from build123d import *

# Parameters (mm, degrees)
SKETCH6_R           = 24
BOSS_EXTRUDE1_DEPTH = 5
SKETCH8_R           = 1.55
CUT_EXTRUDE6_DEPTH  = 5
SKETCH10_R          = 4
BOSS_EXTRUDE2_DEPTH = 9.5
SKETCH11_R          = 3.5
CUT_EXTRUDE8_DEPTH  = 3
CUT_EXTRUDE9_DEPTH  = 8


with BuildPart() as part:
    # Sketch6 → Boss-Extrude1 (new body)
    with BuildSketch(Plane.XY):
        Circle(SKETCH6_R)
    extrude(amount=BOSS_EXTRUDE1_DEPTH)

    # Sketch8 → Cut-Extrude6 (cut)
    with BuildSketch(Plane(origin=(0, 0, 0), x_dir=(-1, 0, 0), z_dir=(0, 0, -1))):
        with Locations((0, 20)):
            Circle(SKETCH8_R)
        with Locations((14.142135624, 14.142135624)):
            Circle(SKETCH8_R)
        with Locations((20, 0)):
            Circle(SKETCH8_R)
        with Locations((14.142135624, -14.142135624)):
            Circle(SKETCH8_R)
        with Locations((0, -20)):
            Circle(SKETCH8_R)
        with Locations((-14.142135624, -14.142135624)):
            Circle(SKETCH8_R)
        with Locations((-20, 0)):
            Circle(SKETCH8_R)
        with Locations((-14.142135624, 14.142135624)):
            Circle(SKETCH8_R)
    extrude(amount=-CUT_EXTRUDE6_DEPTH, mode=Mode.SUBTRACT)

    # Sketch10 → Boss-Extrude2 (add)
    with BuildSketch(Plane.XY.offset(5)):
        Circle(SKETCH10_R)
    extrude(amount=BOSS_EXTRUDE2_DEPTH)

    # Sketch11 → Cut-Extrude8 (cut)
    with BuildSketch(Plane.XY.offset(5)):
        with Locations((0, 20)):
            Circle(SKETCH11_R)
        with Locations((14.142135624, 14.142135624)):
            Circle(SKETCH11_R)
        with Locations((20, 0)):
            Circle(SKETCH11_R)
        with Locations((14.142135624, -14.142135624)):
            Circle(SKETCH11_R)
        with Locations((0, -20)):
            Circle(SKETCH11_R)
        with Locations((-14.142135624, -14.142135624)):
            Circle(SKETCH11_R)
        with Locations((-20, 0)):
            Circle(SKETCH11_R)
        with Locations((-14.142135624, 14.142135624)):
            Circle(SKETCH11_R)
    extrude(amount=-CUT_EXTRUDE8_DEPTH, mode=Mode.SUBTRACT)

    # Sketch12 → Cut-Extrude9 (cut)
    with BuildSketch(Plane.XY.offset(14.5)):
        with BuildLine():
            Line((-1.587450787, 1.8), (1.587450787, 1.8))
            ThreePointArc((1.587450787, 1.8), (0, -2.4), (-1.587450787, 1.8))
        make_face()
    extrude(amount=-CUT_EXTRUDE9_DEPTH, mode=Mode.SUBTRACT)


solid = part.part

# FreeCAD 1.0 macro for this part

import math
import FreeCAD as App
import Part
import Sketcher

V = App.Vector
Q = App.Units.Quantity

doc = App.newDocument("Part")
params = doc.addObject("Spreadsheet::Sheet", "Params")
for row, (alias, value) in enumerate([
    ("sketch1_diameter", "48 mm"),
    ("pad1_length", "5 mm"),
    ("sketch2_diameter", "3.1 mm"),
    ("pocket1_length", "5 mm"),
    ("sketch3_diameter", "8 mm"),
    ("pad2_length", "9.5 mm"),
    ("sketch4_diameter", "7 mm"),
    ("pocket2_length", "3 mm"),
    ("sketch5_radius", "2.4 mm"),
    ("pocket3_length", "8 mm"),
], start=1):
    params.set(f"A{row}", alias)
    params.set(f"B{row}", "=" + value)
    params.setAlias(f"B{row}", alias)

body = doc.addObject("PartDesign::Body", "Body")

sketch1 = doc.addObject("Sketcher::SketchObject", "Sketch")
body.addObject(sketch1)
sketch1.AttachmentSupport = (doc.XY_Plane, [""])
sketch1.MapMode = "FlatFace"
sketch1.addGeometry(Part.Circle(V(0, 0, 0), V(0, 0, 1), 24), False)
sketch1.addConstraint(Sketcher.Constraint("Coincident", 0, 3, -1, 1))
sketch1.addConstraint(Sketcher.Constraint("Diameter", 0, Q("48 mm")))
sketch1.setExpression("Constraints[1]", "Params.sketch1_diameter")
pad1 = doc.addObject("PartDesign::Pad", "Pad")
body.addObject(pad1)
pad1.Profile = sketch1
pad1.setExpression("Length", "Params.pad1_length")

sketch2 = doc.addObject("Sketcher::SketchObject", "Sketch001")
body.addObject(sketch2)
sketch2.AttachmentSupport = (doc.XY_Plane, [""])
sketch2.MapMode = "FlatFace"
sketch2.addGeometry(Part.Circle(V(0, 20, 0), V(0, 0, 1), 1.6), False)
sketch2.addGeometry(Part.Circle(V(-14.1, 14.1, 0), V(0, 0, 1), 1.6), False)
sketch2.addGeometry(Part.Circle(V(-20, 0, 0), V(0, 0, 1), 1.6), False)
sketch2.addGeometry(Part.Circle(V(-14.1, -14.1, 0), V(0, 0, 1), 1.6), False)
sketch2.addGeometry(Part.Circle(V(0, -20, 0), V(0, 0, 1), 1.6), False)
sketch2.addGeometry(Part.Circle(V(14.1, -14.1, 0), V(0, 0, 1), 1.6), False)
sketch2.addGeometry(Part.Circle(V(20, 0, 0), V(0, 0, 1), 1.6), False)
sketch2.addGeometry(Part.Circle(V(14.1, 14.1, 0), V(0, 0, 1), 1.6), False)
sketch2.addConstraint(Sketcher.Constraint("Equal", 0, 1))
sketch2.addConstraint(Sketcher.Constraint("Equal", 1, 2))
sketch2.addConstraint(Sketcher.Constraint("Equal", 2, 3))
sketch2.addConstraint(Sketcher.Constraint("Equal", 3, 4))
sketch2.addConstraint(Sketcher.Constraint("Equal", 4, 5))
sketch2.addConstraint(Sketcher.Constraint("Equal", 5, 6))
sketch2.addConstraint(Sketcher.Constraint("Equal", 6, 7))
sketch2.addConstraint(Sketcher.Constraint("Symmetric", 0, 3, 4, 3, -1, 1))
sketch2.addConstraint(Sketcher.Constraint("Symmetric", 1, 3, 5, 3, -1, 1))
sketch2.addConstraint(Sketcher.Constraint("Symmetric", 2, 3, 6, 3, -1, 1))
sketch2.addConstraint(Sketcher.Constraint("Symmetric", 3, 3, 7, 3, -1, 1))
sketch2.addConstraint(Sketcher.Constraint("Symmetric", 3, 3, 5, 3, -2))
sketch2.addConstraint(Sketcher.Constraint("PointOnObject", 0, 3, -2))
sketch2.addConstraint(Sketcher.Constraint("PointOnObject", 2, 3, -1))
sketch2.addConstraint(Sketcher.Constraint("Diameter", 0, Q("3.1 mm")))
sketch2.addConstraint(Sketcher.Constraint("DistanceY", -1, 1, 0, 3, Q("20 mm")))
sketch2.addConstraint(Sketcher.Constraint("DistanceX", 2, 3, -1, 1, Q("20 mm")))
sketch2.addConstraint(Sketcher.Constraint("DistanceY", 3, 3, 1, 3, Q("28.284271 mm")))
sketch2.addConstraint(Sketcher.Constraint("DistanceX", 3, 3, 5, 3, Q("28.284271 mm")))
sketch2.setExpression("Constraints[14]", "Params.sketch2_diameter")
pocket1 = doc.addObject("PartDesign::Pocket", "Pocket")
body.addObject(pocket1)
pocket1.Profile = sketch2
pocket1.setExpression("Length", "Params.pocket1_length")
pocket1.Reversed = True

sketch3 = doc.addObject("Sketcher::SketchObject", "Sketch002")
body.addObject(sketch3)
sketch3.AttachmentSupport = (doc.XY_Plane, [""])
sketch3.MapMode = "FlatFace"
sketch3.AttachmentOffset = App.Placement(V(0, 0, 5), App.Rotation())
sketch3.addGeometry(Part.Circle(V(0, 0, 0), V(0, 0, 1), 4), False)
sketch3.addConstraint(Sketcher.Constraint("Coincident", 0, 3, -1, 1))
sketch3.addConstraint(Sketcher.Constraint("Diameter", 0, Q("8 mm")))
sketch3.setExpression("Constraints[1]", "Params.sketch3_diameter")
pad2 = doc.addObject("PartDesign::Pad", "Pad001")
body.addObject(pad2)
pad2.Profile = sketch3
pad2.setExpression("Length", "Params.pad2_length")

sketch4 = doc.addObject("Sketcher::SketchObject", "Sketch003")
body.addObject(sketch4)
sketch4.AttachmentSupport = (doc.XY_Plane, [""])
sketch4.MapMode = "FlatFace"
sketch4.AttachmentOffset = App.Placement(V(0, 0, 5), App.Rotation())
sketch4.addGeometry(Part.Circle(V(0, 20, 0), V(0, 0, 1), 3.5), False)
sketch4.addGeometry(Part.Circle(V(14.1, 14.1, 0), V(0, 0, 1), 3.5), False)
sketch4.addGeometry(Part.Circle(V(20, 0, 0), V(0, 0, 1), 3.5), False)
sketch4.addGeometry(Part.Circle(V(14.1, -14.1, 0), V(0, 0, 1), 3.5), False)
sketch4.addGeometry(Part.Circle(V(0, -20, 0), V(0, 0, 1), 3.5), False)
sketch4.addGeometry(Part.Circle(V(-14.1, -14.1, 0), V(0, 0, 1), 3.5), False)
sketch4.addGeometry(Part.Circle(V(-20, 0, 0), V(0, 0, 1), 3.5), False)
sketch4.addGeometry(Part.Circle(V(-14.1, 14.1, 0), V(0, 0, 1), 3.5), False)
sketch4.addConstraint(Sketcher.Constraint("Equal", 0, 1))
sketch4.addConstraint(Sketcher.Constraint("Equal", 1, 2))
sketch4.addConstraint(Sketcher.Constraint("Equal", 2, 3))
sketch4.addConstraint(Sketcher.Constraint("Equal", 3, 4))
sketch4.addConstraint(Sketcher.Constraint("Equal", 4, 5))
sketch4.addConstraint(Sketcher.Constraint("Equal", 5, 6))
sketch4.addConstraint(Sketcher.Constraint("Equal", 6, 7))
sketch4.addConstraint(Sketcher.Constraint("Symmetric", 0, 3, 4, 3, -1, 1))
sketch4.addConstraint(Sketcher.Constraint("Symmetric", 1, 3, 5, 3, -1, 1))
sketch4.addConstraint(Sketcher.Constraint("Symmetric", 2, 3, 6, 3, -1, 1))
sketch4.addConstraint(Sketcher.Constraint("Symmetric", 3, 3, 7, 3, -1, 1))
sketch4.addConstraint(Sketcher.Constraint("Symmetric", 3, 3, 5, 3, -2))
sketch4.addConstraint(Sketcher.Constraint("PointOnObject", 0, 3, -2))
sketch4.addConstraint(Sketcher.Constraint("PointOnObject", 2, 3, -1))
sketch4.addConstraint(Sketcher.Constraint("Diameter", 0, Q("7 mm")))
sketch4.addConstraint(Sketcher.Constraint("DistanceY", -1, 1, 0, 3, Q("20 mm")))
sketch4.addConstraint(Sketcher.Constraint("DistanceX", -1, 1, 2, 3, Q("20 mm")))
sketch4.addConstraint(Sketcher.Constraint("DistanceY", 3, 3, 1, 3, Q("28.284271 mm")))
sketch4.addConstraint(Sketcher.Constraint("DistanceX", 5, 3, 3, 3, Q("28.284271 mm")))
sketch4.setExpression("Constraints[14]", "Params.sketch4_diameter")
pocket2 = doc.addObject("PartDesign::Pocket", "Pocket001")
body.addObject(pocket2)
pocket2.Profile = sketch4
pocket2.setExpression("Length", "Params.pocket2_length")

sketch5 = doc.addObject("Sketcher::SketchObject", "Sketch004")
body.addObject(sketch5)
sketch5.AttachmentSupport = (doc.XY_Plane, [""])
sketch5.MapMode = "FlatFace"
sketch5.AttachmentOffset = App.Placement(V(0, 0, 14.5), App.Rotation())
sketch5.addGeometry(Part.LineSegment(V(1.6, 1.8, 0), V(-1.6, 1.8, 0)), False)
sketch5.addGeometry(Part.ArcOfCircle(Part.Circle(V(0, 0, 0), V(0, 0, 1), 2.4), math.radians(131), math.radians(409)), False)
sketch5.addConstraint(Sketcher.Constraint("Coincident", 0, 1, 1, 2))
sketch5.addConstraint(Sketcher.Constraint("Coincident", 1, 1, 0, 2))
sketch5.addConstraint(Sketcher.Constraint("Horizontal", 0))
sketch5.addConstraint(Sketcher.Constraint("Coincident", 1, 3, -1, 1))
sketch5.addConstraint(Sketcher.Constraint("Radius", 1, Q("2.4 mm")))
sketch5.addConstraint(Sketcher.Constraint("DistanceY", -1, 1, 0, 1, Q("1.8 mm")))
sketch5.setExpression("Constraints[4]", "Params.sketch5_radius")
pocket3 = doc.addObject("PartDesign::Pocket", "Pocket002")
body.addObject(pocket3)
pocket3.Profile = sketch5
pocket3.setExpression("Length", "Params.pocket3_length")

doc.recompute()
